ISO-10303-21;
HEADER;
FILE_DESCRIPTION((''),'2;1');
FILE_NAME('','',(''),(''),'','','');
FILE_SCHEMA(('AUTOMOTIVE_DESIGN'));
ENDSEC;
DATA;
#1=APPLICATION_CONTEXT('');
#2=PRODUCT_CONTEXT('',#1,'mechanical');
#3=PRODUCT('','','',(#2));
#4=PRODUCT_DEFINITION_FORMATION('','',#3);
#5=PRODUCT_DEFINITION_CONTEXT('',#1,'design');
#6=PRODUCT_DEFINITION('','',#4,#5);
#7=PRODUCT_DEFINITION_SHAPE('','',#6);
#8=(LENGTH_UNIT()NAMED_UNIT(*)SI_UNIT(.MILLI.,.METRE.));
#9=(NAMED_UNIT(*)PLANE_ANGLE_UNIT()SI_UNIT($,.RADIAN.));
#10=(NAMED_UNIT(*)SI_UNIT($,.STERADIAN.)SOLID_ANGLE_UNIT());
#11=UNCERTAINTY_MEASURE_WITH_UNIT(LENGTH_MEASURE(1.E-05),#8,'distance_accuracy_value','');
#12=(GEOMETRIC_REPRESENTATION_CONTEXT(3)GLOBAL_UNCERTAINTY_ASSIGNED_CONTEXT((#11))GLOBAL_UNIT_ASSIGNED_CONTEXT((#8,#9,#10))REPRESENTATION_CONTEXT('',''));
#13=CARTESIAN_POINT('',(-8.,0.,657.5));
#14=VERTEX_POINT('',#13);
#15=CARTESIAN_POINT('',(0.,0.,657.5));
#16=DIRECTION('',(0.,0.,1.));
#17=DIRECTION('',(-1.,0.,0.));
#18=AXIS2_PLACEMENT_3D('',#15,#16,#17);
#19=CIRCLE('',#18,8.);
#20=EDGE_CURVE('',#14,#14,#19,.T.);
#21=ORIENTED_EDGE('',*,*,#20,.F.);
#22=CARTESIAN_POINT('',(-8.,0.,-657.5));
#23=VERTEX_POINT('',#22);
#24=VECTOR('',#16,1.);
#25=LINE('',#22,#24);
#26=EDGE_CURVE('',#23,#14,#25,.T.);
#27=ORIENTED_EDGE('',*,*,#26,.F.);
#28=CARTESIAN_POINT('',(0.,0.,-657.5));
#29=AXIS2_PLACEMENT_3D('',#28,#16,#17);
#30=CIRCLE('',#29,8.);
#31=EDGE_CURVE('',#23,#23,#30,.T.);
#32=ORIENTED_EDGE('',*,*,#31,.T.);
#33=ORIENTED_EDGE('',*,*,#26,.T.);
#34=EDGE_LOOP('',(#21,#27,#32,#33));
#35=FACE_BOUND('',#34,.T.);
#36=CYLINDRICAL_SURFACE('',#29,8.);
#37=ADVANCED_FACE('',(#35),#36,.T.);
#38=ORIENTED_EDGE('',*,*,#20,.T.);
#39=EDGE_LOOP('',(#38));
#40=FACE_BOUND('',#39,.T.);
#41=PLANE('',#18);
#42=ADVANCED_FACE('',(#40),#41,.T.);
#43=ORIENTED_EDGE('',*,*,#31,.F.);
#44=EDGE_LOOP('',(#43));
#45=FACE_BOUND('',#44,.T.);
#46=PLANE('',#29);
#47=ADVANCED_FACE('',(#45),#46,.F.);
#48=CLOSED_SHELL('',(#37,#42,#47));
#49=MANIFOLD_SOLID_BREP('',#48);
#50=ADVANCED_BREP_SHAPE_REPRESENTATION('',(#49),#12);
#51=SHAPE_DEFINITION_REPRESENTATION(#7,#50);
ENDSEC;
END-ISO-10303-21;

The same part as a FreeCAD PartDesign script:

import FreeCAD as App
import Part
import Sketcher

V = App.Vector
Q = App.Units.Quantity

doc = App.newDocument("Part")
body = doc.addObject("PartDesign::Body", "Body")

sketch1 = doc.addObject("Sketcher::SketchObject", "Sketch")
body.addObject(sketch1)
sketch1.AttachmentSupport = (doc.XZ_Plane, [""])
sketch1.MapMode = "FlatFace"
sketch1.addGeometry([
    Part.LineSegment(V(0, 658, 0), V(0, -658, 0)),
    Part.LineSegment(V(0, -658, 0), V(-8, -658, 0)),
    Part.LineSegment(V(-8, -658, 0), V(-8, 658, 0)),
    Part.LineSegment(V(-8, 658, 0), V(0, 658, 0)),
], False)
sketch1.addConstraint([
    Sketcher.Constraint("Coincident", 0, 2, 1, 1),
    Sketcher.Constraint("Coincident", 1, 2, 2, 1),
    Sketcher.Constraint("Coincident", 2, 2, 3, 1),
    Sketcher.Constraint("Coincident", 3, 2, 0, 1),
    Sketcher.Constraint("Vertical", 0),
    Sketcher.Constraint("Horizontal", 1),
    Sketcher.Constraint("Vertical", 2),
    Sketcher.Constraint("Horizontal", 3),
    Sketcher.Constraint("Symmetric", 0, 2, 3, 2, -1, 1),
    Sketcher.Constraint("DistanceY", 0, 2, 0, 1, Q("1315 mm")),
    Sketcher.Constraint("DistanceX", 1, 2, 1, 1, Q("8 mm")),
])
revolution = doc.addObject("PartDesign::Revolution", "Revolution")
body.addObject(revolution)
revolution.Profile = sketch1
revolution.ReferenceAxis = (sketch1, ["V_Axis"])
revolution.Angle = 360

doc.recompute()
